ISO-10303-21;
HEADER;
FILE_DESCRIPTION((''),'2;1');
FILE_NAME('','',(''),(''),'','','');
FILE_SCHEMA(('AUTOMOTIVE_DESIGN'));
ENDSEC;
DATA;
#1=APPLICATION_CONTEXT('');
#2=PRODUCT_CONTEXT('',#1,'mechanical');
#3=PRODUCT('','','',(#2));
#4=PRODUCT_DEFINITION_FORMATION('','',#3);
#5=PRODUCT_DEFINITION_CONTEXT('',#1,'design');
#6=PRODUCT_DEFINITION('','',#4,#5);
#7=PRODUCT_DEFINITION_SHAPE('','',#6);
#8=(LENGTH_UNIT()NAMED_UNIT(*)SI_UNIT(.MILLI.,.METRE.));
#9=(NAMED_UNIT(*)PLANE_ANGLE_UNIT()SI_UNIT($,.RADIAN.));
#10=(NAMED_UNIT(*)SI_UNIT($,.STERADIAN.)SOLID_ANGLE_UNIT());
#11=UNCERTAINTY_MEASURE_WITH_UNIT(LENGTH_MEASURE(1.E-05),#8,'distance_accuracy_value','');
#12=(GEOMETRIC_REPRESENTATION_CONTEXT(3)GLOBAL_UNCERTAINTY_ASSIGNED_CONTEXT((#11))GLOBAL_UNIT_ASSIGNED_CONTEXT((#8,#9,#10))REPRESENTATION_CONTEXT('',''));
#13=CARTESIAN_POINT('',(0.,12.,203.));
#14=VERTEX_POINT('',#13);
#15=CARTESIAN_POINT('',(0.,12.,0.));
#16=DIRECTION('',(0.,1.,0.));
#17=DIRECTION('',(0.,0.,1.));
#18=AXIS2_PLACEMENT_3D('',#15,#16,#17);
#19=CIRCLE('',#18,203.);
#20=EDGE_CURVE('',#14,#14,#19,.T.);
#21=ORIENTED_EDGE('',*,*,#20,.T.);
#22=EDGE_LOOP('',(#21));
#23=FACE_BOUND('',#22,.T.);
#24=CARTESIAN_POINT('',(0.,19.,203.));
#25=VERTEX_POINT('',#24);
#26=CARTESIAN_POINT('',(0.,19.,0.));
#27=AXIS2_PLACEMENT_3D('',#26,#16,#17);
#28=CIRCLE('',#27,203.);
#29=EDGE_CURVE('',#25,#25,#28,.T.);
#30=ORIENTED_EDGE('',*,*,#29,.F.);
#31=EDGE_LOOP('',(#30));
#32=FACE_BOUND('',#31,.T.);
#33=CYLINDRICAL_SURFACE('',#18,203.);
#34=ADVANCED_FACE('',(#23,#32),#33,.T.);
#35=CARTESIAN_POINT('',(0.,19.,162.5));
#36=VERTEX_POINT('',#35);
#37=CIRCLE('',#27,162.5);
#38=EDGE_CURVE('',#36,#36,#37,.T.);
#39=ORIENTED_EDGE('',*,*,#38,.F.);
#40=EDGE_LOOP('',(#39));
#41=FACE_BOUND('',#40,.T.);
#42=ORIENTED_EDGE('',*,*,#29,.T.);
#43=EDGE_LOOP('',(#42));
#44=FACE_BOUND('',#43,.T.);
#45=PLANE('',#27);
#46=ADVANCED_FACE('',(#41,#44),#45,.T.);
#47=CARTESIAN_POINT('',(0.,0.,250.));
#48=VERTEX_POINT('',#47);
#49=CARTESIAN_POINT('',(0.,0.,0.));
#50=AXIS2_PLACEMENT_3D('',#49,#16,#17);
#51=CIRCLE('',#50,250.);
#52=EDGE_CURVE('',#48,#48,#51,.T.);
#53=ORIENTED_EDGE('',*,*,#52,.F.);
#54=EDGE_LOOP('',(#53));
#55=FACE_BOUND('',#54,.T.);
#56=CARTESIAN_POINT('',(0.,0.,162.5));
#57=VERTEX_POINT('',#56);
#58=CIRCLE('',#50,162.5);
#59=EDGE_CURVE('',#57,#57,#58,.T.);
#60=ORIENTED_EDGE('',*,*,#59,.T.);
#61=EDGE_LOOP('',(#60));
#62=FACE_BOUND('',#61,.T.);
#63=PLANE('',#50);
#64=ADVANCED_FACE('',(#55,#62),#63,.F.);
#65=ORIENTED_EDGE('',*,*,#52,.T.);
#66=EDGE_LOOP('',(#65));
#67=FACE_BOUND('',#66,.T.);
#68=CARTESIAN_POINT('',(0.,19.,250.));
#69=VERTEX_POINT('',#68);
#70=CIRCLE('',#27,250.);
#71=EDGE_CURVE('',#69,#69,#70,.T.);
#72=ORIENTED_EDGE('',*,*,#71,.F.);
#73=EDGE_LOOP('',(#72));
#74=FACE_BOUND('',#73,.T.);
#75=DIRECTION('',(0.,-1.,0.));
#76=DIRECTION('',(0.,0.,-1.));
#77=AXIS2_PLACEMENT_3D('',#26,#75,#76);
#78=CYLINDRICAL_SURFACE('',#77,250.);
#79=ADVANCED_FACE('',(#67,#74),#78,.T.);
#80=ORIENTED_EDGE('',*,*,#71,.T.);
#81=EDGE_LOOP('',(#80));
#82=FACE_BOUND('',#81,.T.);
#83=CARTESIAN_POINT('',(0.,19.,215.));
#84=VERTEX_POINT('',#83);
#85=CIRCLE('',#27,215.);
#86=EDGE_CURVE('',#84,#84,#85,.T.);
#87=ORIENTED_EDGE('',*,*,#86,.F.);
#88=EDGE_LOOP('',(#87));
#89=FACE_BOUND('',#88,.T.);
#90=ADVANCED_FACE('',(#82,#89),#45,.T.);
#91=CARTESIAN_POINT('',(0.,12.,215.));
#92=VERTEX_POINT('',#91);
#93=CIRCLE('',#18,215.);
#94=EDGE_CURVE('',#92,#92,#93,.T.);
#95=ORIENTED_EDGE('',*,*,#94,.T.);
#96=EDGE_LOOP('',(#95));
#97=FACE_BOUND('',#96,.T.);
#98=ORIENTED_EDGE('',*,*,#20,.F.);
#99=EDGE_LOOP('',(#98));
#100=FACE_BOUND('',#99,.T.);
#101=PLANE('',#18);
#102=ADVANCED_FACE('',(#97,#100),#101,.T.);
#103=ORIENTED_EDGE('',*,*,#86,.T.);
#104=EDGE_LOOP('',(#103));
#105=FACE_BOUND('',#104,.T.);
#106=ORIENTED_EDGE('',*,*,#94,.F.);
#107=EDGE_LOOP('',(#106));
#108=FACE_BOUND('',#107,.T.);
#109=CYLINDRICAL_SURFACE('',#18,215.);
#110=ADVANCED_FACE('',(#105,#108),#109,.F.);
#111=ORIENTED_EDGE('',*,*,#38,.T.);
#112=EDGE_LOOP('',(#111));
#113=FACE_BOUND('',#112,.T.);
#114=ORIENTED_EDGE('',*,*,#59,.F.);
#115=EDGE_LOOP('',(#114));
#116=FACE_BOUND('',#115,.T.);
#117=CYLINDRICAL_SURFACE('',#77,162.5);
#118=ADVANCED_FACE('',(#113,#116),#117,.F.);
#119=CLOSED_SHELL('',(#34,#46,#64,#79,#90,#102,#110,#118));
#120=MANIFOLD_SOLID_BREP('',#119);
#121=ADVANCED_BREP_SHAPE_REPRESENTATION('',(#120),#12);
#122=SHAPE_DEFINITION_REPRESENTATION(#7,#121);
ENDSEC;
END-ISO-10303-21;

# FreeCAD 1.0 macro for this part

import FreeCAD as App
import Part
import Sketcher

V = App.Vector
Q = App.Units.Quantity

doc = App.newDocument("Part")
params = doc.addObject("Spreadsheet::Sheet", "Params")
for row, (alias, value) in enumerate([
    ("sketch1_diameter", "500 mm"),
    ("sketch1_diameter2", "325 mm"),
    ("pad1_length", "19 mm"),
    ("sketch2_diameter", "430 mm"),
    ("sketch2_diameter2", "406 mm"),
    ("pocket1_length", "7 mm"),
], start=1):
    params.set(f"A{row}", alias)
    params.set(f"B{row}", "=" + value)
    params.setAlias(f"B{row}", alias)

body = doc.addObject("PartDesign::Body", "Body")

# Sketch on XZ plane
sketch1 = body.newObject("Sketcher::SketchObject", "Sketch")
sketch1.AttachmentSupport = (doc.getObject("XZ_Plane"), [""])
sketch1.MapMode = "FlatFace"
sketch1.addGeometry(Part.Circle(V(0, 0, 0), V(0, 0, 1), 250), False)
sketch1.addGeometry(Part.Circle(V(0, 0, 0), V(0, 0, 1), 162.5), False)
sketch1.addConstraint(Sketcher.Constraint("Coincident", 0, 3, -1, 1))
sketch1.addConstraint(Sketcher.Constraint("Coincident", 1, 3, -1, 1))
sketch1.addConstraint(Sketcher.Constraint("Diameter", 0, Q("500 mm")))
sketch1.addConstraint(Sketcher.Constraint("Diameter", 1, Q("325 mm")))
sketch1.setExpression("Constraints[2]", "Params.sketch1_diameter")
sketch1.setExpression("Constraints[3]", "Params.sketch1_diameter2")
pad1 = body.newObject("PartDesign::Pad", "Pad")
pad1.Profile = sketch1
pad1.setExpression("Length", "Params.pad1_length")
pad1.Reversed = True

# Sketch on XZ plane
sketch2 = body.newObject("Sketcher::SketchObject", "Sketch001")
sketch2.AttachmentSupport = (doc.getObject("XZ_Plane"), [""])
sketch2.MapMode = "FlatFace"
sketch2.AttachmentOffset = App.Placement(V(0, 0, -19), App.Rotation())
sketch2.addGeometry(Part.Circle(V(0, 0, 0), V(0, 0, 1), 215), False)
sketch2.addGeometry(Part.Circle(V(0, 0, 0), V(0, 0, 1), 203), False)
sketch2.addConstraint(Sketcher.Constraint("Coincident", 0, 3, -1, 1))
sketch2.addConstraint(Sketcher.Constraint("Coincident", 1, 3, -1, 1))
sketch2.addConstraint(Sketcher.Constraint("Diameter", 0, Q("430 mm")))
sketch2.addConstraint(Sketcher.Constraint("Diameter", 1, Q("406 mm")))
sketch2.setExpression("Constraints[2]", "Params.sketch2_diameter")
sketch2.setExpression("Constraints[3]", "Params.sketch2_diameter2")
pocket1 = body.newObject("PartDesign::Pocket", "Pocket")
pocket1.Profile = sketch2
pocket1.setExpression("Length", "Params.pocket1_length")
pocket1.Reversed = True

doc.recompute()
